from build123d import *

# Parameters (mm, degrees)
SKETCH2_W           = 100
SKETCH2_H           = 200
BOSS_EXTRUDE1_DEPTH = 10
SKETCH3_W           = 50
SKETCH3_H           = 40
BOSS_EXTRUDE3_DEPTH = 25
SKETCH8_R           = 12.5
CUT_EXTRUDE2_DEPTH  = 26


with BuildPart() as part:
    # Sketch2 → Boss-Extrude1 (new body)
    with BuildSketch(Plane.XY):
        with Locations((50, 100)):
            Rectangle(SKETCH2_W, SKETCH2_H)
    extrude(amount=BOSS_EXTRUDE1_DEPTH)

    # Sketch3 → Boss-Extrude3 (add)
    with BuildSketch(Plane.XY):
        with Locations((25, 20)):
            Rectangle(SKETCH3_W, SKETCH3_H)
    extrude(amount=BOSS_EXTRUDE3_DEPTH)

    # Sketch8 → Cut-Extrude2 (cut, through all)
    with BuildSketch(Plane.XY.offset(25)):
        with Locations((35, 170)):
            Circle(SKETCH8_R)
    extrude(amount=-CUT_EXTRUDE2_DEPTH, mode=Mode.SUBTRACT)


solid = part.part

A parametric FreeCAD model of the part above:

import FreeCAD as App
import Part
import Sketcher

doc = App.newDocument("Part")
body = doc.addObject("PartDesign::Body", "Body")

# Sketch on XY plane
sketch1 = body.newObject("Sketcher::SketchObject", "Sketch")
sketch1.AttachmentSupport = (doc.getObject("XY_Plane"), [""])
sketch1.MapMode = "FlatFace"
sketch1.addGeometry([
    Part.LineSegment(App.Vector(0, 200, 0), App.Vector(0, 0, 0)),
    Part.LineSegment(App.Vector(0, 0, 0), App.Vector(100, 0, 0)),
    Part.LineSegment(App.Vector(100, 0, 0), App.Vector(100, 200, 0)),
    Part.LineSegment(App.Vector(100, 200, 0), App.Vector(0, 200, 0)),
], False)
sketch1.addConstraint([
    Sketcher.Constraint("Coincident", 0, 2, 1, 1),
    Sketcher.Constraint("Coincident", 1, 2, 2, 1),
    Sketcher.Constraint("Coincident", 2, 2, 3, 1),
    Sketcher.Constraint("Coincident", 3, 2, 0, 1),
    Sketcher.Constraint("Vertical", 0),
    Sketcher.Constraint("Horizontal", 1),
    Sketcher.Constraint("Vertical", 2),
    Sketcher.Constraint("Horizontal", 3),
    Sketcher.Constraint("Coincident", 0, 2, -1, 1),
    Sketcher.Constraint("DistanceX", 1, 1, 1, 2, 100.0),
    Sketcher.Constraint("DistanceY", 0, 2, 0, 1, 200.0),
])
pad1 = body.newObject("PartDesign::Pad", "Pad")
pad1.Profile = sketch1
pad1.Length = 10

# Sketch on XY plane
sketch2 = body.newObject("Sketcher::SketchObject", "Sketch001")
sketch2.AttachmentSupport = (doc.getObject("XY_Plane"), [""])
sketch2.MapMode = "FlatFace"
sketch2.addGeometry([
    Part.LineSegment(App.Vector(0, 40, 0), App.Vector(0, 0, 0)),
    Part.LineSegment(App.Vector(0, 0, 0), App.Vector(50, 0, 0)),
    Part.LineSegment(App.Vector(50, 0, 0), App.Vector(50, 40, 0)),
    Part.LineSegment(App.Vector(50, 40, 0), App.Vector(0, 40, 0)),
], False)
sketch2.addConstraint([
    Sketcher.Constraint("Coincident", 0, 2, 1, 1),
    Sketcher.Constraint("Coincident", 1, 2, 2, 1),
    Sketcher.Constraint("Coincident", 2, 2, 3, 1),
    Sketcher.Constraint("Coincident", 3, 2, 0, 1),
    Sketcher.Constraint("Vertical", 0),
    Sketcher.Constraint("Horizontal", 1),
    Sketcher.Constraint("Vertical", 2),
    Sketcher.Constraint("Horizontal", 3),
    Sketcher.Constraint("Coincident", 0, 2, -1, 1),
    Sketcher.Constraint("DistanceX", 1, 1, 1, 2, 50.0),
    Sketcher.Constraint("DistanceY", 0, 2, 0, 1, 40.0),
])
pad2 = body.newObject("PartDesign::Pad", "Pad001")
pad2.Profile = sketch2
pad2.Length = 25

# Sketch on XY plane
sketch3 = body.newObject("Sketcher::SketchObject", "Sketch002")
sketch3.AttachmentSupport = (doc.getObject("XY_Plane"), [""])
sketch3.MapMode = "FlatFace"
sketch3.AttachmentOffset = App.Placement(App.Vector(0, 0, 25), App.Rotation())
sketch3.addGeometry(Part.Circle(App.Vector(35, 170, 0), App.Vector(0, 0, 1), 12.5), False)
sketch3.addConstraint([
    Sketcher.Constraint("Diameter", 0, 25.0),
    Sketcher.Constraint("DistanceX", -1, 1, 0, 3, 35.0),
    Sketcher.Constraint("DistanceY", -1, 1, 0, 3, 170.0),
])
pocket1 = body.newObject("PartDesign::Pocket", "Pocket")
pocket1.Profile = sketch3
pocket1.Type = "ThroughAll"

doc.recompute()
